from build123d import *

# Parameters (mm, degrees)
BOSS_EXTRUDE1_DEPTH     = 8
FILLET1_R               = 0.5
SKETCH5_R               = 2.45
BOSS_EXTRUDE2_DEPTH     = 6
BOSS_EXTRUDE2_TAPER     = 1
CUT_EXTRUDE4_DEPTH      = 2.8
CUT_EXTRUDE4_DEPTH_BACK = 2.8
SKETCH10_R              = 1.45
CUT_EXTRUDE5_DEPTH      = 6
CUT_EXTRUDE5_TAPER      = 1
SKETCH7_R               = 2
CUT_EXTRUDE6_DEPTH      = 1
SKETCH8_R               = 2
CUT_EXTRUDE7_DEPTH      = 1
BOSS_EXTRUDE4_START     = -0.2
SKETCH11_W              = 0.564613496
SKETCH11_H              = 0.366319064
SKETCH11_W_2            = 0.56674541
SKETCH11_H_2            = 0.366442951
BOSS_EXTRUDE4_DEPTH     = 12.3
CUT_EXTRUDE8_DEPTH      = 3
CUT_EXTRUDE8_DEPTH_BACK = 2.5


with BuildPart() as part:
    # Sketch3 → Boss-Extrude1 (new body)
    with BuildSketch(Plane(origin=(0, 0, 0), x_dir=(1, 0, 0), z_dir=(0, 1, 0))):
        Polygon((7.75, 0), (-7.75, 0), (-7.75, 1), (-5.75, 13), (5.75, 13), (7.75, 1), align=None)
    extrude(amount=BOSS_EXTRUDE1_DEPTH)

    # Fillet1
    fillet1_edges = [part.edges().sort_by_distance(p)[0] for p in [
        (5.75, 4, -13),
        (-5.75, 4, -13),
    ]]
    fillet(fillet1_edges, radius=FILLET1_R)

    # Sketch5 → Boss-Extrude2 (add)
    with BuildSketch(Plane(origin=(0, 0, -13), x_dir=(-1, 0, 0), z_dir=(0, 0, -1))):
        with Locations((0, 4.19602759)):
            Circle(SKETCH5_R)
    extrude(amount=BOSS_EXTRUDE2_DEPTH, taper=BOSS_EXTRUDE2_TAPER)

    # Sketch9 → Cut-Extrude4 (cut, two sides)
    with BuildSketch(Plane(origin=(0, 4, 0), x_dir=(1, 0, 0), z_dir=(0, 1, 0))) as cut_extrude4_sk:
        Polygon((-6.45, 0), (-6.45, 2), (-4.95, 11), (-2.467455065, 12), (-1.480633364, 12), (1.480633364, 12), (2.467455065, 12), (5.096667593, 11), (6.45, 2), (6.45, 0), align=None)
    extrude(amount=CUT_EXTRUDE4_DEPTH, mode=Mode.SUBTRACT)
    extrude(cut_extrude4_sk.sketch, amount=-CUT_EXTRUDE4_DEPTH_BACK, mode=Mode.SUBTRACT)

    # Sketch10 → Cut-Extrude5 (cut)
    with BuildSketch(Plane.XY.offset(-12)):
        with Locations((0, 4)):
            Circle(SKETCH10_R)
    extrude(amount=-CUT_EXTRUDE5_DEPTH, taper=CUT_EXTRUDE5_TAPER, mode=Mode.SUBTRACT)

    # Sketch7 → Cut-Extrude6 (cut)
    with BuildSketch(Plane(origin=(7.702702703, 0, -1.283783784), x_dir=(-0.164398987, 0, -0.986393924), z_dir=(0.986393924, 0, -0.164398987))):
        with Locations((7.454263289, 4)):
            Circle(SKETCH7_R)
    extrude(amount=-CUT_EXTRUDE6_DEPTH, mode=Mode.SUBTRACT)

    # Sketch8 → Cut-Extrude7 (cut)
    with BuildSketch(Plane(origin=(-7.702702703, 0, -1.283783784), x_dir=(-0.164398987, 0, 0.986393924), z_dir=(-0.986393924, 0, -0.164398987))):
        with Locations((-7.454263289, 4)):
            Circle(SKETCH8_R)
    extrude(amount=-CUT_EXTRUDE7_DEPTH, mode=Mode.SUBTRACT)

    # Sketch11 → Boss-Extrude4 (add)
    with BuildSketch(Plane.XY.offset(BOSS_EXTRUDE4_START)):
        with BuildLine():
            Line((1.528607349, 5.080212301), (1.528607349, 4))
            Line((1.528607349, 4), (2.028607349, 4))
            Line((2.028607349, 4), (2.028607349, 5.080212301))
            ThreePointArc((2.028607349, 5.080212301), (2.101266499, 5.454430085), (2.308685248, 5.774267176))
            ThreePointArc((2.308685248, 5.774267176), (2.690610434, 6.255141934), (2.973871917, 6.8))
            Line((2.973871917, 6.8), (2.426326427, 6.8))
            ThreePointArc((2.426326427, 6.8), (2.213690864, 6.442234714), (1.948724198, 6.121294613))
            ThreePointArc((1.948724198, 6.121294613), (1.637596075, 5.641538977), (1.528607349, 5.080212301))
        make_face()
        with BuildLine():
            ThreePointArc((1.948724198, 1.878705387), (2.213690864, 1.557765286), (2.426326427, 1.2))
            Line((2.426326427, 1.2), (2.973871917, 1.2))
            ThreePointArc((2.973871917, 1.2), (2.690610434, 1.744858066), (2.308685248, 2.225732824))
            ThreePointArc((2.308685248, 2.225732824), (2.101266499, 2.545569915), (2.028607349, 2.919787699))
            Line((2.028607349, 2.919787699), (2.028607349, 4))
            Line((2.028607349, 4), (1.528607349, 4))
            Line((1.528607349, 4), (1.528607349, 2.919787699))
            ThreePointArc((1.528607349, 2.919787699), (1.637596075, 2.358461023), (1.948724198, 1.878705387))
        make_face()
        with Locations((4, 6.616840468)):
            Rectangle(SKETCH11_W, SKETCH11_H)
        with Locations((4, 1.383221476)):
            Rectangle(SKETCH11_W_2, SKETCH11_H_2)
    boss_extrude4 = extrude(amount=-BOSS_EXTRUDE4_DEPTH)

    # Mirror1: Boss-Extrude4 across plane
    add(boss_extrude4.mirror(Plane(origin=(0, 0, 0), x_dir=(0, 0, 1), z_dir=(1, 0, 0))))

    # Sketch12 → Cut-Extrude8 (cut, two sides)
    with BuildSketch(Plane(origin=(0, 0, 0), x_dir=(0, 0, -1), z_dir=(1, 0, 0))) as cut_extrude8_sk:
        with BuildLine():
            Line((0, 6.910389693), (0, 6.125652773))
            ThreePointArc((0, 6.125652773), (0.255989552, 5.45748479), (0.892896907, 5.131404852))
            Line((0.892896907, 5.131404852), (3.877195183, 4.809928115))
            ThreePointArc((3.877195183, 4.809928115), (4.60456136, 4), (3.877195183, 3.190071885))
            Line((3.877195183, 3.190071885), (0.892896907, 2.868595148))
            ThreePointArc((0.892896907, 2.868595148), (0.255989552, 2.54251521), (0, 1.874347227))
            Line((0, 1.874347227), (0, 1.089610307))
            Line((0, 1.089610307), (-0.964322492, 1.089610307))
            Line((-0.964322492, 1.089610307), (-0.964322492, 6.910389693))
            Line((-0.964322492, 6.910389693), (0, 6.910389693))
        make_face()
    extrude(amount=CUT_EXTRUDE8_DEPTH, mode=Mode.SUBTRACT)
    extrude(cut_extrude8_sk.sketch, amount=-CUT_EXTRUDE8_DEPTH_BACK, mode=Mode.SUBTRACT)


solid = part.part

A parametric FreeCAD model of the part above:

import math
import FreeCAD as App
import Part
import Sketcher
Q = App.Units.Quantity


def edges_at(feature, points):
    """Names of the edges that pass closest to the given points."""
    edges = feature.Shape.Edges
    near = lambda p: min(range(len(edges)), key=lambda i: edges[i].distToShape(Part.Vertex(*p))[0])
    return sorted({f"Edge{near(p) + 1}" for p in points})

doc = App.newDocument("Part")
body = doc.addObject("PartDesign::Body", "Body")

# Sketch on XZ plane
sketch1 = body.newObject("Sketcher::SketchObject", "Sketch")
sketch1.AttachmentSupport = (doc.getObject("XZ_Plane"), [""])
sketch1.MapMode = "FlatFace"
sketch1.addGeometry([
    Part.LineSegment(App.Vector(-7.75, 0, 0), App.Vector(7.75, 0, 0)),  # 0
    Part.LineSegment(App.Vector(7.75, 0, 0), App.Vector(7.75, -1, 0)),  # 1
    Part.LineSegment(App.Vector(7.75, -1, 0), App.Vector(5.75, -13, 0)),  # 2
    Part.LineSegment(App.Vector(5.75, -13, 0), App.Vector(-5.75, -13, 0)),  # 3
    Part.LineSegment(App.Vector(-5.75, -13, 0), App.Vector(-7.75, -1, 0)),  # 4
    Part.LineSegment(App.Vector(-7.75, -1, 0), App.Vector(-7.75, 0, 0)),  # 5
], False)
sketch1.addConstraint([
    Sketcher.Constraint("Coincident", 0, 2, 1, 1),
    Sketcher.Constraint("Coincident", 1, 2, 2, 1),
    Sketcher.Constraint("Coincident", 2, 2, 3, 1),
    Sketcher.Constraint("Coincident", 3, 2, 4, 1),
    Sketcher.Constraint("Coincident", 4, 2, 5, 1),
    Sketcher.Constraint("Coincident", 5, 2, 0, 1),
    Sketcher.Constraint("Horizontal", 0),
    Sketcher.Constraint("Vertical", 1),
    Sketcher.Constraint("Horizontal", 3),
    Sketcher.Constraint("Vertical", 5),
    Sketcher.Constraint("Symmetric", 0, 2, 5, 2, -1, 1),
    Sketcher.Constraint("Horizontal", 1, 2, 4, 2),
    Sketcher.Constraint("Equal", 2, 4),
    Sketcher.Constraint("DistanceY", 1, 2, 1, 1, Q("1 mm")),
    Sketcher.Constraint("DistanceX", 0, 1, 0, 2, Q("15.5 mm")),
    Sketcher.Constraint("DistanceX", 3, 2, 3, 1, Q("11.5 mm")),
    Sketcher.Constraint("DistanceY", 2, 2, -1, 1, Q("13 mm")),
])
pad1 = body.newObject("PartDesign::Pad", "Pad")
pad1.Profile = sketch1
pad1.Length = 8
pad1.Reversed = True
doc.recompute()

fillet = body.newObject("PartDesign::Fillet", "Fillet")
fillet.Base = (pad1, edges_at(pad1, [(5.75, 4, -13), (-5.75, 4, -13)]))
fillet.Radius = 0.5

# Sketch on XY plane
sketch2 = body.newObject("Sketcher::SketchObject", "Sketch001")
sketch2.AttachmentSupport = (doc.getObject("XY_Plane"), [""])
sketch2.MapMode = "FlatFace"
sketch2.AttachmentOffset = App.Placement(App.Vector(0, 0, -13), App.Rotation())
sketch2.addGeometry(Part.Circle(App.Vector(0, 4.196028, 0), App.Vector(0, 0, 1), 2.45), False)
sketch2.addConstraint([
    Sketcher.Constraint("PointOnObject", 0, 3, -2),
    Sketcher.Constraint("Diameter", 0, Q("4.9 mm")),
    Sketcher.Constraint("DistanceY", -1, 1, 0, 3, Q("4.196028 mm")),
])
pad2 = body.newObject("PartDesign::Pad", "Pad001")
pad2.Profile = sketch2
pad2.Length = 6
pad2.Reversed = True
pad2.TaperAngle = -1

# Sketch on XZ plane
sketch3 = body.newObject("Sketcher::SketchObject", "Sketch002")
sketch3.AttachmentSupport = (doc.getObject("XZ_Plane"), [""])
sketch3.MapMode = "FlatFace"
sketch3.AttachmentOffset = App.Placement(App.Vector(0, 0, -4), App.Rotation())
sketch3.addGeometry([
    Part.LineSegment(App.Vector(-6.45, -2, 0), App.Vector(-6.45, 0, 0)),  # 0
    Part.LineSegment(App.Vector(-6.45, 0, 0), App.Vector(6.45, 0, 0)),  # 1
    Part.LineSegment(App.Vector(6.45, 0, 0), App.Vector(6.45, -2, 0)),  # 2
    Part.LineSegment(App.Vector(6.45, -2, 0), App.Vector(5.096668, -11, 0)),  # 3
    Part.LineSegment(App.Vector(5.096668, -11, 0), App.Vector(2.467455, -12, 0)),  # 4
    Part.LineSegment(App.Vector(2.467455, -12, 0), App.Vector(-2.467455, -12, 0)),  # 5
    Part.LineSegment(App.Vector(-2.467455, -12, 0), App.Vector(-4.95, -11, 0)),  # 6
    Part.LineSegment(App.Vector(-4.95, -11, 0), App.Vector(-6.45, -2, 0)),  # 7
], False)
sketch3.addConstraint([
    Sketcher.Constraint("Coincident", 0, 2, 1, 1),
    Sketcher.Constraint("Coincident", 1, 2, 2, 1),
    Sketcher.Constraint("Coincident", 2, 2, 3, 1),
    Sketcher.Constraint("Coincident", 3, 2, 4, 1),
    Sketcher.Constraint("Coincident", 4, 2, 5, 1),
    Sketcher.Constraint("Coincident", 5, 2, 6, 1),
    Sketcher.Constraint("Coincident", 6, 2, 7, 1),
    Sketcher.Constraint("Coincident", 7, 2, 0, 1),
    Sketcher.Constraint("Vertical", 0),
    Sketcher.Constraint("Horizontal", 1),
    Sketcher.Constraint("Vertical", 2),
    Sketcher.Constraint("Horizontal", 5),
    Sketcher.Constraint("Symmetric", 0, 2, 1, 2, -1, 1),
    Sketcher.Constraint("Horizontal", 3, 2, 6, 2),
    Sketcher.Constraint("Horizontal", 2, 2, 7, 2),
    Sketcher.Constraint("DistanceY", 0, 1, 0, 2, Q("2 mm")),
    Sketcher.Constraint("DistanceX", 1, 1, 1, 2, Q("12.9 mm")),
    Sketcher.Constraint("DistanceY", 3, 2, -1, 1, Q("11 mm")),
    Sketcher.Constraint("DistanceY", 4, 2, -1, 1, Q("12 mm")),
    Sketcher.Constraint("DistanceX", 0, 2, 6, 2, Q("1.5 mm")),
    Sketcher.Constraint("DistanceX", 5, 2, 5, 1, Q("4.93491 mm")),
    Sketcher.Constraint("Distance", 3, Q("9.101182 mm")),
    Sketcher.Constraint("Distance", 4, Q("2.812963 mm")),
])
pocket1 = body.newObject("PartDesign::Pocket", "Pocket")
pocket1.Profile = sketch3
pocket1.Type = "TwoLengths"
pocket1.Length = 2.8
pocket1.Length2 = 2.8

# Sketch on XY plane
sketch4 = body.newObject("Sketcher::SketchObject", "Sketch003")
sketch4.AttachmentSupport = (doc.getObject("XY_Plane"), [""])
sketch4.MapMode = "FlatFace"
sketch4.AttachmentOffset = App.Placement(App.Vector(0, 0, -12), App.Rotation())
sketch4.addGeometry(Part.Circle(App.Vector(0, 4, 0), App.Vector(0, 0, 1), 1.45), False)
sketch4.addConstraint([
    Sketcher.Constraint("PointOnObject", 0, 3, -2),
    Sketcher.Constraint("Diameter", 0, Q("2.9 mm")),
    Sketcher.Constraint("DistanceY", -1, 1, 0, 3, Q("4 mm")),
])
pocket2 = body.newObject("PartDesign::Pocket", "Pocket001")
pocket2.Profile = sketch4
pocket2.Length = 6
pocket2.TaperAngle = -1

# Sketch on an angled plane
sketch5 = body.newObject("Sketcher::SketchObject", "Sketch004")
sketch5.Placement = App.Placement(App.Vector(7.702703, 0, -1.283784), App.Rotation(App.Vector(-0.164398987, 0, -0.986393924), App.Vector(0, 1, 0), App.Vector(0.986393924, 0, -0.164398987), "ZXY"))
sketch5.addGeometry(Part.Circle(App.Vector(7.454263, 4, 0), App.Vector(0, 0, 1), 2), False)
sketch5.addConstraint([
    Sketcher.Constraint("Diameter", 0, Q("4 mm")),
    Sketcher.Constraint("DistanceY", -1, 1, 0, 3, Q("4 mm")),
    Sketcher.Constraint("DistanceX", -1, 1, 0, 3, Q("7.454263 mm")),
])
pocket3 = body.newObject("PartDesign::Pocket", "Pocket002")
pocket3.Profile = sketch5
pocket3.Length = 1

# Sketch on an angled plane
sketch6 = body.newObject("Sketcher::SketchObject", "Sketch005")
sketch6.Placement = App.Placement(App.Vector(-7.702703, 0, -1.283784), App.Rotation(App.Vector(-0.164398987, 0, 0.986393924), App.Vector(0, 1, 0), App.Vector(-0.986393924, 0, -0.164398987), "ZXY"))
sketch6.addGeometry(Part.Circle(App.Vector(-7.454263, 4, 0), App.Vector(0, 0, 1), 2), False)
sketch6.addConstraint([
    Sketcher.Constraint("Diameter", 0, Q("4 mm")),
    Sketcher.Constraint("DistanceY", -1, 1, 0, 3, Q("4 mm")),
    Sketcher.Constraint("DistanceX", 0, 3, -1, 1, Q("7.454263 mm")),
])
pocket4 = body.newObject("PartDesign::Pocket", "Pocket003")
pocket4.Profile = sketch6
pocket4.Length = 1

# Sketch on XY plane
sketch7 = body.newObject("Sketcher::SketchObject", "Sketch006")
sketch7.AttachmentSupport = (doc.getObject("XY_Plane"), [""])
sketch7.MapMode = "FlatFace"
sketch7.AttachmentOffset = App.Placement(App.Vector(0, 0, -0.2), App.Rotation())
sketch7.addGeometry([
    Part.LineSegment(App.Vector(1.528607, 5.080212, 0), App.Vector(1.528607, 2.919788, 0)),  # 0
    Part.ArcOfCircle(Part.Circle(App.Vector(3.028607, 2.919788, 0), App.Vector(0, 0, 1), 1.5), math.radians(180), math.radians(223.951951)),  # 1
    Part.ArcOfCircle(Part.Circle(App.Vector(0, 0, 0), App.Vector(0, 0, 1), 2.706854), math.radians(26.315841), math.radians(43.951951)),  # 2
    Part.LineSegment(App.Vector(2.426326, 1.2, 0), App.Vector(2.973872, 1.2, 0)),  # 3
    Part.ArcOfCircle(Part.Circle(App.Vector(0, 0, 0), App.Vector(0, 0, 1), 3.206854), math.radians(21.974783), math.radians(43.951951)),  # 4
    Part.ArcOfCircle(Part.Circle(App.Vector(3.028607, 2.919788, 0), App.Vector(0, 0, 1), 1), math.radians(180), math.radians(223.951951)),  # 5
    Part.LineSegment(App.Vector(2.028607, 2.919788, 0), App.Vector(2.028607, 5.080212, 0)),  # 6
    Part.ArcOfCircle(Part.Circle(App.Vector(3.028607, 5.080212, 0), App.Vector(0, 0, 1), 1), math.radians(136.048049), math.radians(180)),  # 7
    Part.ArcOfCircle(Part.Circle(App.Vector(0, 8, 0), App.Vector(0, 0, 1), 3.206854), math.radians(-43.951951), math.radians(-21.974783)),  # 8
    Part.LineSegment(App.Vector(2.973872, 6.8, 0), App.Vector(2.426326, 6.8, 0)),  # 9
    Part.ArcOfCircle(Part.Circle(App.Vector(0, 8, 0), App.Vector(0, 0, 1), 2.706854), math.radians(-43.951951), math.radians(-26.315841)),  # 10
    Part.ArcOfCircle(Part.Circle(App.Vector(3.028607, 5.080212, 0), App.Vector(0, 0, 1), 1.5), math.radians(136.048049), math.radians(180)),  # 11
    Part.LineSegment(App.Vector(3.717693, 6.8, 0), App.Vector(3.717693, 6.433681, 0)),  # 12
    Part.LineSegment(App.Vector(3.717693, 6.433681, 0), App.Vector(4.282307, 6.433681, 0)),  # 13
    Part.LineSegment(App.Vector(4.282307, 6.433681, 0), App.Vector(4.282307, 6.8, 0)),  # 14
    Part.LineSegment(App.Vector(4.282307, 6.8, 0), App.Vector(3.717693, 6.8, 0)),  # 15
    Part.LineSegment(App.Vector(3.716627, 1.566443, 0), App.Vector(3.716627, 1.2, 0)),  # 16
    Part.LineSegment(App.Vector(3.716627, 1.2, 0), App.Vector(4.283373, 1.2, 0)),  # 17
    Part.LineSegment(App.Vector(4.283373, 1.2, 0), App.Vector(4.283373, 1.566443, 0)),  # 18
    Part.LineSegment(App.Vector(4.283373, 1.566443, 0), App.Vector(3.716627, 1.566443, 0)),  # 19
], False)
sketch7.addConstraint([
    Sketcher.Constraint("Tangent", 0, 2, 1, 1),
    Sketcher.Constraint("Tangent", 1, 2, 2, 2),
    Sketcher.Constraint("Coincident", 2, 1, 3, 1),
    Sketcher.Constraint("Coincident", 3, 2, 4, 1),
    Sketcher.Constraint("Tangent", 4, 2, 5, 2),
    Sketcher.Constraint("Tangent", 5, 1, 6, 1),
    Sketcher.Constraint("Tangent", 6, 2, 7, 2),
    Sketcher.Constraint("Tangent", 7, 1, 8, 1),
    Sketcher.Constraint("Coincident", 8, 2, 9, 1),
    Sketcher.Constraint("Coincident", 9, 2, 10, 2),
    Sketcher.Constraint("Tangent", 10, 1, 11, 1),
    Sketcher.Constraint("Tangent", 11, 2, 0, 1),
    Sketcher.Constraint("Coincident", 12, 2, 13, 1),
    Sketcher.Constraint("Coincident", 13, 2, 14, 1),
    Sketcher.Constraint("Coincident", 14, 2, 15, 1),
    Sketcher.Constraint("Coincident", 15, 2, 12, 1),
    Sketcher.Constraint("Coincident", 16, 2, 17, 1),
    Sketcher.Constraint("Coincident", 17, 2, 18, 1),
    Sketcher.Constraint("Coincident", 18, 2, 19, 1),
    Sketcher.Constraint("Coincident", 19, 2, 16, 1),
    Sketcher.Constraint("Vertical", 0),
    Sketcher.Constraint("Horizontal", 3),
    Sketcher.Constraint("Vertical", 6),
    Sketcher.Constraint("Horizontal", 9),
    Sketcher.Constraint("Vertical", 12),
    Sketcher.Constraint("Horizontal", 13),
    Sketcher.Constraint("Vertical", 14),
    Sketcher.Constraint("Horizontal", 15),
    Sketcher.Constraint("Vertical", 16),
    Sketcher.Constraint("Horizontal", 17),
    Sketcher.Constraint("Vertical", 18),
    Sketcher.Constraint("Horizontal", 19),
    Sketcher.Constraint("Coincident", 2, 3, -1, 1),
    Sketcher.Constraint("Coincident", 4, 3, -1, 1),
    Sketcher.Constraint("Coincident", 5, 3, 1, 3),
    Sketcher.Constraint("Coincident", 10, 3, 8, 3),
    Sketcher.Constraint("Coincident", 11, 3, 7, 3),
    Sketcher.Constraint("Equal", 5, 7),
    Sketcher.Constraint("Equal", 4, 8),
    Sketcher.Constraint("PointOnObject", 8, 3, -2),
    Sketcher.Constraint("Horizontal", 9, 2, 14, 2),
    Sketcher.Constraint("Horizontal", 3, 2, 16, 2),
    Sketcher.Constraint("Vertical", 3, 2, 8, 2),
    Sketcher.Constraint("Radius", 5, Q("1 mm")),
    Sketcher.Constraint("Radius", 1, Q("1.5 mm")),
    Sketcher.Constraint("DistanceY", -1, 1, 8, 3, Q("8 mm")),
    Sketcher.Constraint("DistanceY", -1, 1, 2, 1, Q("1.2 mm")),
    Sketcher.Constraint("Radius", 2, Q("2.706854 mm")),
    Sketcher.Constraint("DistanceY", 12, 2, 12, 1, Q("0.366319 mm")),
    Sketcher.Constraint("DistanceX", 11, 3, 13, 2, Q("1.253699 mm")),
    Sketcher.Constraint("DistanceX", 2, 1, 16, 2, Q("1.290301 mm")),
    Sketcher.Constraint("DistanceX", 3, 2, 17, 2, Q("1.309501 mm")),
    Sketcher.Constraint("DistanceX", 13, 1, 13, 2, Q("0.564613 mm")),
    Sketcher.Constraint("DistanceY", 0, 2, 0, 1, Q("2.160425 mm")),
    Sketcher.Constraint("DistanceY", 16, 2, 16, 1, Q("0.366443 mm")),
])
pad3 = body.newObject("PartDesign::Pad", "Pad002")
pad3.Profile = sketch7
pad3.Length = 12.3
pad3.Reversed = True
doc.recompute()

mirrored = body.newObject("PartDesign::Mirrored", "Mirrored")
mirrored.Originals = [pad3]
mirrored.MirrorPlane = (doc.getObject("YZ_Plane"), [""])
body.Tip = mirrored

# Sketch on YZ plane
sketch8 = body.newObject("Sketcher::SketchObject", "Sketch007")
sketch8.AttachmentSupport = (doc.getObject("YZ_Plane"), [""])
sketch8.MapMode = "FlatFace"
sketch8.addGeometry([
    Part.LineSegment(App.Vector(6.125653, 0, 0), App.Vector(6.91039, 0, 0)),  # 0
    Part.LineSegment(App.Vector(6.91039, 0, 0), App.Vector(6.91039, 0.964322, 0)),  # 1
    Part.LineSegment(App.Vector(6.91039, 0.964322, 0), App.Vector(1.08961, 0.964322, 0)),  # 2
    Part.LineSegment(App.Vector(1.08961, 0.964322, 0), App.Vector(1.08961, 0, 0)),  # 3
    Part.LineSegment(App.Vector(1.08961, 0, 0), App.Vector(1.874347, 0, 0)),  # 4
    Part.ArcOfCircle(Part.Circle(App.Vector(1.874347, -1, 0), App.Vector(0, 0, 1), 1), math.radians(6.148348), math.radians(90)),  # 5
    Part.LineSegment(App.Vector(2.868595, -0.892897, 0), App.Vector(3.190072, -3.877195, 0)),  # 6
    Part.ArcOfCircle(Part.Circle(App.Vector(4, -3.789948, 0), App.Vector(0, 0, 1), 0.814614), math.radians(-173.851652), math.radians(-6.148348)),  # 7
    Part.LineSegment(App.Vector(4.809928, -3.877195, 0), App.Vector(5.131405, -0.892897, 0)),  # 8
    Part.ArcOfCircle(Part.Circle(App.Vector(6.125653, -1, 0), App.Vector(0, 0, 1), 1), math.radians(90), math.radians(173.851652)),  # 9
], False)
sketch8.addConstraint([
    Sketcher.Constraint("Coincident", 0, 2, 1, 1),
    Sketcher.Constraint("Coincident", 1, 2, 2, 1),
    Sketcher.Constraint("Coincident", 2, 2, 3, 1),
    Sketcher.Constraint("Coincident", 3, 2, 4, 1),
    Sketcher.Constraint("Tangent", 4, 2, 5, 2),
    Sketcher.Constraint("Tangent", 5, 1, 6, 1),
    Sketcher.Constraint("Tangent", 6, 2, 7, 1),
    Sketcher.Constraint("Tangent", 7, 2, 8, 1),
    Sketcher.Constraint("Tangent", 8, 2, 9, 2),
    Sketcher.Constraint("Tangent", 9, 1, 0, 1),
    Sketcher.Constraint("Horizontal", 0),
    Sketcher.Constraint("Vertical", 1),
    Sketcher.Constraint("Horizontal", 2),
    Sketcher.Constraint("Vertical", 3),
    Sketcher.Constraint("Horizontal", 4),
    Sketcher.Constraint("Equal", 5, 9),
    Sketcher.Constraint("PointOnObject", 0, 2, -1),
    Sketcher.Constraint("PointOnObject", 3, 2, -1),
    Sketcher.Constraint("Horizontal", 6, 2, 7, 2),
    Sketcher.Constraint("Equal", 0, 4),
    Sketcher.Constraint("Radius", 5, Q("1 mm")),
    Sketcher.Constraint("DistanceX", -1, 1, 7, 3, Q("4 mm")),
    Sketcher.Constraint("Radius", 7, Q("0.814614 mm")),
    Sketcher.Constraint("DistanceX", 2, 2, 2, 1, Q("5.820779 mm")),
    Sketcher.Constraint("DistanceY", 6, 2, 5, 1, Q("2.984298 mm")),
    Sketcher.Constraint("DistanceX", 0, 1, 0, 2, Q("0.784737 mm")),
    Sketcher.Constraint("DistanceY", 1, 1, 1, 2, Q("0.964322 mm")),
])
pocket5 = body.newObject("PartDesign::Pocket", "Pocket004")
pocket5.Profile = sketch8
pocket5.Type = "TwoLengths"
pocket5.Length = 3
pocket5.Length2 = 2.5
pocket5.Reversed = True

doc.recompute()
